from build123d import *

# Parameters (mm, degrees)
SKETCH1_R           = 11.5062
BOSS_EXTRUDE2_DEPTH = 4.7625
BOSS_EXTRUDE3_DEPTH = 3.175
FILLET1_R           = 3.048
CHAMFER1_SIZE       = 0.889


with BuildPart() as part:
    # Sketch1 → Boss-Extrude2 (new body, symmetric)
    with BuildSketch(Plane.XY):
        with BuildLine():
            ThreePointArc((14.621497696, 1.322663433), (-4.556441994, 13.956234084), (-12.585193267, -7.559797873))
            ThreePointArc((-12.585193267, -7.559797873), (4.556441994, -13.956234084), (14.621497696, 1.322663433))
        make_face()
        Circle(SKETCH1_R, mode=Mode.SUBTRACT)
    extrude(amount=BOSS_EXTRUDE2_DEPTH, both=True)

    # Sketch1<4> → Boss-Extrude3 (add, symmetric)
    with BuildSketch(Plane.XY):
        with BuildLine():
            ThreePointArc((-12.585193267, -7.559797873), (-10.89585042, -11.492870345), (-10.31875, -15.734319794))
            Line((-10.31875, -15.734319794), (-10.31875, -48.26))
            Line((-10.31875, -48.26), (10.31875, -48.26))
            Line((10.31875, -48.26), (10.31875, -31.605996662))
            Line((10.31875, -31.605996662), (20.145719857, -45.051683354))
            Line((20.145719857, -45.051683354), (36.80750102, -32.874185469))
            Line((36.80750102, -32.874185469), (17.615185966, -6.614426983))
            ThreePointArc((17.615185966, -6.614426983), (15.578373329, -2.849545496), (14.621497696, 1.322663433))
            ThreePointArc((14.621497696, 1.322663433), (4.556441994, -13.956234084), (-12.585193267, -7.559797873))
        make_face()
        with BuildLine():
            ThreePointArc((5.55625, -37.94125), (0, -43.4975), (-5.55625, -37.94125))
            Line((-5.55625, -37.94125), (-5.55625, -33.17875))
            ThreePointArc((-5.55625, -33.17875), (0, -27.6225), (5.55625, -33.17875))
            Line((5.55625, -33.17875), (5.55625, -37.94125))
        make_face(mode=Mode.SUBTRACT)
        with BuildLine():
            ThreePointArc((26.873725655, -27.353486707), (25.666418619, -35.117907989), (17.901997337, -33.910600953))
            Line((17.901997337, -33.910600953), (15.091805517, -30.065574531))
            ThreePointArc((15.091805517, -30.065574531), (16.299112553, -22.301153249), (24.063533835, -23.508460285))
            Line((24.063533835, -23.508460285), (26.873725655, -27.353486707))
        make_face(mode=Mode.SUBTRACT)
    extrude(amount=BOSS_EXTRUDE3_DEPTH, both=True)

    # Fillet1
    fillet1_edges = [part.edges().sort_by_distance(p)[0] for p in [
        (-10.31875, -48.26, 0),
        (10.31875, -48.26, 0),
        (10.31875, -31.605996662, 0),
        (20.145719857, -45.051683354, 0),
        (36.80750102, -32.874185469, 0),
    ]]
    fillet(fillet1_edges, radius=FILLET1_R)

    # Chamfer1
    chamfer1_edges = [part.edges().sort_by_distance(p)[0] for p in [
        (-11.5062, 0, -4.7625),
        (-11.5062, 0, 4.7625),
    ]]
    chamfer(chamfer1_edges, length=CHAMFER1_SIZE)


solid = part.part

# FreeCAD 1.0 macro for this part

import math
import FreeCAD as App
import Part
import Sketcher
from FreeCAD import Vector
Q = App.Units.Quantity


def edges_at(feature, points):
    """Names of the edges that pass closest to the given points."""
    edges = feature.Shape.Edges
    near = lambda p: min(range(len(edges)), key=lambda i: edges[i].distToShape(Part.Vertex(*p))[0])
    return sorted({f"Edge{near(p) + 1}" for p in points})

doc = App.newDocument("Part")
body = doc.addObject("PartDesign::Body", "Body")

sketch1 = body.newObject("Sketcher::SketchObject", "Sketch")
sketch1.AttachmentSupport = (doc.getObject("XY_Plane"), [""])
sketch1.MapMode = "FlatFace"
sketch1.addGeometry([
    Part.ArcOfCircle(Part.Circle(Vector(0, 0, 0), Vector(0, 0, 1), 15), math.radians(5), math.radians(211)),
    Part.ArcOfCircle(Part.Circle(Vector(0, 0, 0), Vector(0, 0, 1), 15), math.radians(-149), math.radians(5)),
    Part.Circle(Vector(0, 0, 0), Vector(0, 0, 1), 12),
], False)
sketch1.addConstraint([
    Sketcher.Constraint("Tangent", 0, 1, 1, 2),
    Sketcher.Constraint("Coincident", 1, 1, 0, 2),
    Sketcher.Constraint("Coincident", 0, 3, -1, 1),
    Sketcher.Constraint("Coincident", 2, 3, -1, 1),
    Sketcher.Constraint("Diameter", 2, Q("0.906 in")),
    Sketcher.Constraint("Radius", 0, Q("0.578 in")),
    Sketcher.Constraint("DistanceX", 1, 1, 0, 1, Q("27.206691 mm")),
    Sketcher.Constraint("DistanceY", 1, 1, 0, 1, Q("8.882461 mm")),
])
pad1 = body.newObject("PartDesign::Pad", "Pad")
pad1.Profile = sketch1
pad1.Length = Q("0.375 in")
pad1.Midplane = True

sketch2 = body.newObject("Sketcher::SketchObject", "Sketch001")
sketch2.AttachmentSupport = (doc.getObject("XY_Plane"), [""])
sketch2.MapMode = "FlatFace"
sketch2.addGeometry([
    Part.ArcOfCircle(Part.Circle(Vector(-26.2, -15.7, 0), Vector(0, 0, 1), 15.9), math.radians(0), math.radians(31)),
    Part.LineSegment(Vector(-10.3, -15.7, 0), Vector(-10.3, -48.3, 0)),
    Part.LineSegment(Vector(-10.3, -48.3, 0), Vector(10.3, -48.3, 0)),
    Part.LineSegment(Vector(10.3, -48.3, 0), Vector(10.3, -31.6, 0)),
    Part.LineSegment(Vector(10.3, -31.6, 0), Vector(20.1, -45.1, 0)),
    Part.LineSegment(Vector(20.1, -45.1, 0), Vector(36.8, -32.9, 0)),
    Part.LineSegment(Vector(36.8, -32.9, 0), Vector(17.6, -6.6, 0)),
    Part.ArcOfCircle(Part.Circle(Vector(30.4, 2.8, 0), Vector(0, 0, 1), 15.9), math.radians(-175), math.radians(-144)),
    Part.ArcOfCircle(Part.Circle(Vector(0, 0, 0), Vector(0, 0, 1), 14.7), math.radians(-149), math.radians(5)),
    Part.LineSegment(Vector(5.6, -33.2, 0), Vector(5.6, -37.9, 0)),
    Part.ArcOfCircle(Part.Circle(Vector(0, -37.9, 0), Vector(0, 0, 1), 5.6), math.radians(180), math.radians(360)),
    Part.LineSegment(Vector(-5.6, -37.9, 0), Vector(-5.6, -33.2, 0)),
    Part.ArcOfCircle(Part.Circle(Vector(0, -33.2, 0), Vector(0, 0, 1), 5.6), math.radians(0), math.radians(180)),
    Part.LineSegment(Vector(24.1, -23.5, 0), Vector(26.9, -27.4, 0)),
    Part.ArcOfCircle(Part.Circle(Vector(22.4, -30.6, 0), Vector(0, 0, 1), 5.6), math.radians(-144), math.radians(36)),
    Part.LineSegment(Vector(17.9, -33.9, 0), Vector(15.1, -30.1, 0)),
    Part.ArcOfCircle(Part.Circle(Vector(19.6, -26.8, 0), Vector(0, 0, 1), 5.6), math.radians(36), math.radians(216)),
], False)
sketch2.addConstraint([
    Sketcher.Constraint("Tangent", 0, 1, 1, 1),
    Sketcher.Constraint("Coincident", 1, 2, 2, 1),
    Sketcher.Constraint("Coincident", 2, 2, 3, 1),
    Sketcher.Constraint("Coincident", 3, 2, 4, 1),
    Sketcher.Constraint("Coincident", 4, 2, 5, 1),
    Sketcher.Constraint("Coincident", 5, 2, 6, 1),
    Sketcher.Constraint("Tangent", 6, 2, 7, 2),
    Sketcher.Constraint("Tangent", 7, 1, 8, 2),
    Sketcher.Constraint("Tangent", 8, 1, 0, 2),
    Sketcher.Constraint("Tangent", 9, 2, 10, 2),
    Sketcher.Constraint("Tangent", 10, 1, 11, 1),
    Sketcher.Constraint("Tangent", 11, 2, 12, 2),
    Sketcher.Constraint("Tangent", 12, 1, 9, 1),
    Sketcher.Constraint("Tangent", 13, 2, 14, 2),
    Sketcher.Constraint("Tangent", 14, 1, 15, 1),
    Sketcher.Constraint("Tangent", 15, 2, 16, 2),
    Sketcher.Constraint("Tangent", 16, 1, 13, 1),
    Sketcher.Constraint("Vertical", 1),
    Sketcher.Constraint("Horizontal", 2),
    Sketcher.Constraint("Vertical", 3),
    Sketcher.Constraint("Vertical", 9),
    Sketcher.Constraint("Vertical", 11),
    Sketcher.Constraint("Coincident", 8, 3, -1, 1),
    Sketcher.Constraint("Equal", 0, 7),
    Sketcher.Constraint("Equal", 12, 14),
    Sketcher.Constraint("Equal", 14, 16),
    Sketcher.Constraint("PointOnObject", 10, 3, -2),
    Sketcher.Constraint("Perpendicular", 4, 5),
    Sketcher.Constraint("Perpendicular", 5, 6),
    Sketcher.Constraint("Parallel", 6, 13),
    Sketcher.Constraint("Radius", 0, Q("0.625 in")),
    Sketcher.Constraint("Radius", 8, Q("0.578 in")),
    Sketcher.Constraint("Radius", 10, Q("0.21875 in")),
    Sketcher.Constraint("DistanceY", 1, 2, -1, 1, Q("1.9 in")),
    Sketcher.Constraint("DistanceX", 2, 1, 2, 2, Q("0.8125 in")),
    Sketcher.Constraint("DistanceY", 9, 2, 9, 1, Q("0.1875 in")),
    Sketcher.Constraint("Distance", 5, Q("0.8125 in")),
    Sketcher.Constraint("Distance", 13, Q("0.1875 in")),
    Sketcher.Constraint("DistanceX", 0, 3, -1, 1, Q("1.03125 in")),
    Sketcher.Constraint("DistanceY", 1, 2, 10, 3, Q("0.40625 in")),
    Sketcher.Constraint("DistanceX", -1, 1, 5, 2, Q("36.807501 mm")),
    Sketcher.Constraint("DistanceY", 14, 1, -1, 1, Q("33.910601 mm")),
    Sketcher.Constraint("DistanceY", 0, 3, 7, 3, Q("18.487199 mm")),
    Sketcher.Constraint("DistanceY", 5, 2, 13, 2, Q("5.520699 mm")),
    Sketcher.Constraint("DistanceX", -1, 1, 14, 3, Q("22.387861 mm")),
])
pad2 = body.newObject("PartDesign::Pad", "Pad001")
pad2.Profile = sketch2
pad2.Length = Q("0.25 in")
pad2.Midplane = True
doc.recompute()

fillet = body.newObject("PartDesign::Fillet", "Fillet")
fillet.Base = (pad2, edges_at(pad2, [
    (-10.319, -48.26, 0),
    (10.319, -48.26, 0),
    (10.319, -31.606, 0),
    (20.146, -45.052, 0),
    (36.808, -32.874, 0),
]))
fillet.Radius = Q("0.12 in")
doc.recompute()

chamfer = body.newObject("PartDesign::Chamfer", "Chamfer")
chamfer.Base = (fillet, edges_at(fillet, [(-11.506, 0, -4.763), (-11.506, 0, 4.763)]))
chamfer.Size = Q("0.035 in")

doc.recompute()
